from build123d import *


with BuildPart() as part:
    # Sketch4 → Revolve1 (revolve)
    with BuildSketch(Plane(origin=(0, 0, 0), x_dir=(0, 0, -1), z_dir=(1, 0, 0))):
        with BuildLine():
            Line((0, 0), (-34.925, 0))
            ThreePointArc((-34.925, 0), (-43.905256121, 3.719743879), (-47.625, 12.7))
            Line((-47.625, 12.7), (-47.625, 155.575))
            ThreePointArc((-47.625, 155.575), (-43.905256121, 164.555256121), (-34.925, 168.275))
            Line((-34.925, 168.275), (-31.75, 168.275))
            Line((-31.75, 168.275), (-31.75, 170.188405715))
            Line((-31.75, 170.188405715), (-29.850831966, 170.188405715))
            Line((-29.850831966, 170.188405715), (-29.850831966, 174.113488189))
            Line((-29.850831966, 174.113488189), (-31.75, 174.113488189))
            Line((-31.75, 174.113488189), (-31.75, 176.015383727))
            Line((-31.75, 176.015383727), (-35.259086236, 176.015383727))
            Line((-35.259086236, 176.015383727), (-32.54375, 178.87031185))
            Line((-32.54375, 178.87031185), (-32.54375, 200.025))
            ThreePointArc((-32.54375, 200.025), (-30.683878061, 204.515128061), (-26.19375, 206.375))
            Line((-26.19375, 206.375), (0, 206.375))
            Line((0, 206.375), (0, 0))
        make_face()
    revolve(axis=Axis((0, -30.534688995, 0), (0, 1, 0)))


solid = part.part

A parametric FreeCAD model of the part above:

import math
import FreeCAD as App
import Part
import Sketcher

V = App.Vector
Q = App.Units.Quantity

doc = App.newDocument("Part")
body = doc.addObject("PartDesign::Body", "Body")

# Sketch on YZ plane
sketch1 = body.newObject("Sketcher::SketchObject", "Sketch")
sketch1.AttachmentSupport = (doc.getObject("YZ_Plane"), [""])
sketch1.MapMode = "FlatFace"
sketch1.addGeometry(Part.LineSegment(V(0, 34.9, 0), V(0, 0, 0)), False)
sketch1.addGeometry(Part.LineSegment(V(0, 0, 0), V(206.4, 0, 0)), False)
sketch1.addGeometry(Part.LineSegment(V(206.4, 0, 0), V(206.4, 26.2, 0)), False)
sketch1.addGeometry(Part.ArcOfCircle(Part.Circle(V(200, 26.2, 0), V(0, 0, 1), 6.3), math.radians(0), math.radians(90)), False)
sketch1.addGeometry(Part.LineSegment(V(200, 32.5, 0), V(178.9, 32.5, 0)), False)
sketch1.addGeometry(Part.LineSegment(V(178.9, 32.5, 0), V(176, 35.3, 0)), False)
sketch1.addGeometry(Part.LineSegment(V(176, 35.3, 0), V(176, 31.8, 0)), False)
sketch1.addGeometry(Part.LineSegment(V(176, 31.8, 0), V(174.1, 31.8, 0)), False)
sketch1.addGeometry(Part.LineSegment(V(174.1, 31.8, 0), V(174.1, 29.9, 0)), False)
sketch1.addGeometry(Part.LineSegment(V(174.1, 29.9, 0), V(170.2, 29.9, 0)), False)
sketch1.addGeometry(Part.LineSegment(V(170.2, 29.9, 0), V(170.2, 31.8, 0)), False)
sketch1.addGeometry(Part.LineSegment(V(170.2, 31.8, 0), V(168.3, 31.8, 0)), False)
sketch1.addGeometry(Part.LineSegment(V(168.3, 31.8, 0), V(168.3, 34.9, 0)), False)
sketch1.addGeometry(Part.ArcOfCircle(Part.Circle(V(155.6, 34.9, 0), V(0, 0, 1), 12.7), math.radians(0), math.radians(90)), False)
sketch1.addGeometry(Part.LineSegment(V(155.6, 47.6, 0), V(12.7, 47.6, 0)), False)
sketch1.addGeometry(Part.ArcOfCircle(Part.Circle(V(12.7, 34.9, 0), V(0, 0, 1), 12.7), math.radians(90), math.radians(180)), False)
sketch1.addConstraint(Sketcher.Constraint("Coincident", 0, 2, 1, 1))
sketch1.addConstraint(Sketcher.Constraint("Coincident", 1, 2, 2, 1))
sketch1.addConstraint(Sketcher.Constraint("Tangent", 2, 2, 3, 1))
sketch1.addConstraint(Sketcher.Constraint("Tangent", 3, 2, 4, 1))
sketch1.addConstraint(Sketcher.Constraint("Coincident", 4, 2, 5, 1))
sketch1.addConstraint(Sketcher.Constraint("Coincident", 5, 2, 6, 1))
sketch1.addConstraint(Sketcher.Constraint("Coincident", 6, 2, 7, 1))
sketch1.addConstraint(Sketcher.Constraint("Coincident", 7, 2, 8, 1))
sketch1.addConstraint(Sketcher.Constraint("Coincident", 8, 2, 9, 1))
sketch1.addConstraint(Sketcher.Constraint("Coincident", 9, 2, 10, 1))
sketch1.addConstraint(Sketcher.Constraint("Coincident", 10, 2, 11, 1))
sketch1.addConstraint(Sketcher.Constraint("Coincident", 11, 2, 12, 1))
sketch1.addConstraint(Sketcher.Constraint("Tangent", 12, 2, 13, 1))
sketch1.addConstraint(Sketcher.Constraint("Tangent", 13, 2, 14, 1))
sketch1.addConstraint(Sketcher.Constraint("Tangent", 14, 2, 15, 1))
sketch1.addConstraint(Sketcher.Constraint("Tangent", 15, 2, 0, 1))
sketch1.addConstraint(Sketcher.Constraint("Vertical", 0))
sketch1.addConstraint(Sketcher.Constraint("Horizontal", 1))
sketch1.addConstraint(Sketcher.Constraint("Vertical", 2))
sketch1.addConstraint(Sketcher.Constraint("Horizontal", 4))
sketch1.addConstraint(Sketcher.Constraint("Vertical", 6))
sketch1.addConstraint(Sketcher.Constraint("Horizontal", 7))
sketch1.addConstraint(Sketcher.Constraint("Vertical", 8))
sketch1.addConstraint(Sketcher.Constraint("Horizontal", 9))
sketch1.addConstraint(Sketcher.Constraint("Vertical", 10))
sketch1.addConstraint(Sketcher.Constraint("Horizontal", 11))
sketch1.addConstraint(Sketcher.Constraint("Vertical", 12))
sketch1.addConstraint(Sketcher.Constraint("Horizontal", 14))
sketch1.addConstraint(Sketcher.Constraint("Coincident", 0, 2, -1, 1))
sketch1.addConstraint(Sketcher.Constraint("Equal", 13, 15))
sketch1.addConstraint(Sketcher.Constraint("Horizontal", 7, 2, 10, 2))
sketch1.addConstraint(Sketcher.Constraint("Radius", 13, Q("0.5 in")))
sketch1.addConstraint(Sketcher.Constraint("Radius", 3, Q("0.25 in")))
sketch1.addConstraint(Sketcher.Constraint("DistanceX", 13, 3, 1, 2, Q("2 in")))
sketch1.addConstraint(Sketcher.Constraint("DistanceX", 1, 1, 1, 2, Q("8.125 in")))
sketch1.addConstraint(Sketcher.Constraint("DistanceY", 0, 2, 0, 1, Q("1.375 in")))
sketch1.addConstraint(Sketcher.Constraint("DistanceY", 2, 1, 2, 2, Q("1.03125 in")))
sketch1.addConstraint(Sketcher.Constraint("DistanceY", 12, 1, 12, 2, Q("0.125 in")))
sketch1.addConstraint(Sketcher.Constraint("DistanceX", 4, 2, 4, 1, Q("21.154688 mm")))
sketch1.addConstraint(Sketcher.Constraint("DistanceY", 8, 2, 8, 1, Q("1.899168 mm")))
sketch1.addConstraint(Sketcher.Constraint("Distance", 5, Q("3.940008 mm")))
sketch1.addConstraint(Sketcher.Constraint("DistanceX", 7, 2, 7, 1, Q("1.901896 mm")))
sketch1.addConstraint(Sketcher.Constraint("DistanceX", 9, 2, 9, 1, Q("3.925082 mm")))
sketch1.addConstraint(Sketcher.Constraint("DistanceX", 11, 2, 11, 1, Q("1.913406 mm")))
revolution = body.newObject("PartDesign::Revolution", "Revolution")
revolution.Profile = sketch1
revolution.ReferenceAxis = (sketch1, ["H_Axis"])
revolution.Angle = 360

doc.recompute()
